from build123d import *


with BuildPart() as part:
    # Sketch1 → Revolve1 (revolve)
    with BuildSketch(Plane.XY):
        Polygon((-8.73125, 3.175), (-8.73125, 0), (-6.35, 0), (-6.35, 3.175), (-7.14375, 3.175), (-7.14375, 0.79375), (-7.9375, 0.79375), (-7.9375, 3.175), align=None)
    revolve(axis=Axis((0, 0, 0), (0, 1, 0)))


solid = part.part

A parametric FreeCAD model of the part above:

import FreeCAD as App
import Part
import Sketcher
from FreeCAD import Vector
Q = App.Units.Quantity


def add_polygon(sketch, points):
    """Adds a closed chain of lines whose ends are joined by coincident constraints."""
    first, n = sketch.GeometryCount, len(points)
    for a, b in zip(points, points[1:] + points[:1]):
        sketch.addGeometry(Part.LineSegment(App.Vector(*a, 0), App.Vector(*b, 0)), False)
    for i in range(n):
        sketch.addConstraint(Sketcher.Constraint("Coincident", first + i, 2, first + (i + 1) % n, 1))

doc = App.newDocument("Part")
body = doc.addObject("PartDesign::Body", "Body")

sketch1 = body.newObject("Sketcher::SketchObject", "Sketch")
sketch1.AttachmentSupport = (doc.getObject("XY_Plane"), [""])
sketch1.MapMode = "FlatFace"
add_polygon(sketch1, [(-8.73125, 3.175), (-8.73125, 0), (-6.35, 0), (-6.35, 3.175), (-7.14375, 3.175), (-7.14375, 0.79375), (-7.9375, 0.79375), (-7.9375, 3.175)])
sketch1.addConstraint([
    Sketcher.Constraint("Vertical", 0),
    Sketcher.Constraint("Horizontal", 1),
    Sketcher.Constraint("Vertical", 2),
    Sketcher.Constraint("Horizontal", 3),
    Sketcher.Constraint("Vertical", 4),
    Sketcher.Constraint("Horizontal", 5),
    Sketcher.Constraint("Vertical", 6),
    Sketcher.Constraint("Horizontal", 7),
    Sketcher.Constraint("PointOnObject", 0, 2, -1),
    Sketcher.Constraint("Horizontal", 3, 2, 6, 2),
    Sketcher.Constraint("Equal", 3, 5),
    Sketcher.Constraint("Equal", 5, 7),
    Sketcher.Constraint("Equal", 1, 4),
    Sketcher.Constraint("DistanceX", 1, 1, 1, 2, Q("0.09375 in")),
    Sketcher.Constraint("DistanceY", 0, 2, 0, 1, Q("0.125 in")),
    Sketcher.Constraint("DistanceX", 1, 2, -1, 1, Q("0.25 in")),
])
revolution = body.newObject("PartDesign::Revolution", "Revolution")
revolution.Profile = sketch1
revolution.ReferenceAxis = (sketch1, ["V_Axis"])
revolution.Angle = 360

doc.recompute()
